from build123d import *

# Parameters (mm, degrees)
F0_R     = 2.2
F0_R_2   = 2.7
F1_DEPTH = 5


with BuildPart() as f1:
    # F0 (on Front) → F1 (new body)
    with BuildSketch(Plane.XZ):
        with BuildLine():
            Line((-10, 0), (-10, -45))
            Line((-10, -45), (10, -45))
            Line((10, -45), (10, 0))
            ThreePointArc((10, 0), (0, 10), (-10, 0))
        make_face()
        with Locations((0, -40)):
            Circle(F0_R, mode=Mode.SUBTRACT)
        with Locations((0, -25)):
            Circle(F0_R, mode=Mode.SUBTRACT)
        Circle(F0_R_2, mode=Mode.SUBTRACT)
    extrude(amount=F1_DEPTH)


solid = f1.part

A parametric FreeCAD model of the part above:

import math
import FreeCAD as App
import Part
import Sketcher
from FreeCAD import Vector

doc = App.newDocument("Part")
params = doc.addObject("Spreadsheet::Sheet", "Params")
for row, (alias, value) in enumerate([
    ("sketch1_radius", "10 mm"),
    ("sketch1_diameter", "4.4 mm"),
    ("sketch1_diameter2", "5.4 mm"),
    ("sketch1_height", "45 mm"),
    ("pad1_length", "5 mm"),
], start=1):
    params.set(f"A{row}", alias)
    params.set(f"B{row}", "=" + value)
    params.setAlias(f"B{row}", alias)

body = doc.addObject("PartDesign::Body", "Body")

sketch1 = doc.addObject("Sketcher::SketchObject", "Sketch")
body.addObject(sketch1)
sketch1.AttachmentSupport = (doc.XZ_Plane, [""])
sketch1.MapMode = "FlatFace"
sketch1.addGeometry([
    Part.LineSegment(Vector(-10, 0, 0), Vector(-10, -45, 0)),
    Part.LineSegment(Vector(-10, -45, 0), Vector(10, -45, 0)),
    Part.LineSegment(Vector(10, -45, 0), Vector(10, 0, 0)),
    Part.ArcOfCircle(Part.Circle(Vector(0, 0, 0), Vector(0, 0, 1), 10), math.radians(0), math.radians(180)),
    Part.Circle(Vector(0, -40, 0), Vector(0, 0, 1), 2.2),
    Part.Circle(Vector(0, -25, 0), Vector(0, 0, 1), 2.2),
    Part.Circle(Vector(0, 0, 0), Vector(0, 0, 1), 2.7),
], False)
sketch1.addConstraint([
    Sketcher.Constraint("Coincident", 0, 2, 1, 1),
    Sketcher.Constraint("Coincident", 1, 2, 2, 1),
    Sketcher.Constraint("Tangent", 2, 2, 3, 1),
    Sketcher.Constraint("Tangent", 3, 2, 0, 1),
    Sketcher.Constraint("Vertical", 0),
    Sketcher.Constraint("Horizontal", 1),
    Sketcher.Constraint("Vertical", 2),
    Sketcher.Constraint("Coincident", 3, 3, -1, 1),
    Sketcher.Constraint("Coincident", 6, 3, -1, 1),
    Sketcher.Constraint("Equal", 4, 5),
    Sketcher.Constraint("PointOnObject", 4, 3, -2),
    Sketcher.Constraint("PointOnObject", 5, 3, -2),
    Sketcher.Constraint("Radius", 3, 10.0),
    Sketcher.Constraint("Diameter", 4, 4.4),
    Sketcher.Constraint("Diameter", 6, 5.4),
    Sketcher.Constraint("DistanceY", 0, 2, 0, 1, 45.0),
    Sketcher.Constraint("DistanceY", 4, 3, -1, 1, 40.0),
    Sketcher.Constraint("DistanceY", 5, 3, -1, 1, 25.0),
])
sketch1.setExpression("Constraints[12]", "Params.sketch1_radius")
sketch1.setExpression("Constraints[13]", "Params.sketch1_diameter")
sketch1.setExpression("Constraints[14]", "Params.sketch1_diameter2")
sketch1.setExpression("Constraints[15]", "Params.sketch1_height")
pad1 = doc.addObject("PartDesign::Pad", "Pad")
body.addObject(pad1)
pad1.Profile = sketch1
pad1.setExpression("Length", "Params.pad1_length")

doc.recompute()
